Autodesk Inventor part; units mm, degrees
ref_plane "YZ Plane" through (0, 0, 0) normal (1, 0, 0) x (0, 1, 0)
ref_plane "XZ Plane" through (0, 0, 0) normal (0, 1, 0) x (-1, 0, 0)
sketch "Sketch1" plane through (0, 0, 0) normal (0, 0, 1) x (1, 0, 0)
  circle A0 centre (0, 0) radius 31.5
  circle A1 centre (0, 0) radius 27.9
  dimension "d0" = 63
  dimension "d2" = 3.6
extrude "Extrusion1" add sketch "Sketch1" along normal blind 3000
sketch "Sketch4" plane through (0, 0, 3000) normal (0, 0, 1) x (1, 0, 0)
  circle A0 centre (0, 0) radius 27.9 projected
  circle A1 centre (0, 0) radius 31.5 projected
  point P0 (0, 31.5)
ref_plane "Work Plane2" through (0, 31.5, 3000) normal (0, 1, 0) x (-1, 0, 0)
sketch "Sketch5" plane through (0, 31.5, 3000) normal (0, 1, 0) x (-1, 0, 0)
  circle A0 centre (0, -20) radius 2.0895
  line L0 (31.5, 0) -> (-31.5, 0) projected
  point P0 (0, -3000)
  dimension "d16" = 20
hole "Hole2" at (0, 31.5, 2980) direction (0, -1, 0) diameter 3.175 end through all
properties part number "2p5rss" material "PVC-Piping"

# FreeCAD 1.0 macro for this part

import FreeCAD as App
import Part
import Sketcher

V = App.Vector

doc = App.newDocument("Part")
body = doc.addObject("PartDesign::Body", "Body")

# Sketch on XY plane
sketch1 = body.newObject("Sketcher::SketchObject", "Sketch")
sketch1.AttachmentSupport = (doc.getObject("XY_Plane"), [""])
sketch1.MapMode = "FlatFace"
sketch1.addGeometry([
    Part.Circle(V(0, 0, 0), V(0, 0, 1), 32),
    Part.Circle(V(0, 0, 0), V(0, 0, 1), 28),
], False)
sketch1.addConstraint([
    Sketcher.Constraint("Coincident", 0, 3, -1, 1),
    Sketcher.Constraint("Coincident", 1, 3, -1, 1),
    Sketcher.Constraint("Diameter", 0, 63.0),
    Sketcher.Constraint("Diameter", 1, 55.8),
])
pad1 = body.newObject("PartDesign::Pad", "Pad")
pad1.Profile = sketch1
pad1.Length = 3000

# Sketch on XZ plane
sketch2 = body.newObject("Sketcher::SketchObject", "Sketch001")
sketch2.AttachmentSupport = (doc.getObject("XZ_Plane"), [""])
sketch2.MapMode = "FlatFace"
sketch2.AttachmentOffset = App.Placement(V(0, 0, -31.5), App.Rotation())
sketch2.addGeometry(Part.Circle(V(0, 2980, 0), V(0, 0, 1), 1.6), False)
sketch2.addConstraint([
    Sketcher.Constraint("PointOnObject", 0, 3, -2),
    Sketcher.Constraint("Diameter", 0, 3.175),
    Sketcher.Constraint("DistanceY", -1, 1, 0, 3, 2980.0),
])
doc.recompute()
hole = body.newObject("PartDesign::Hole", "Hole")
hole.Profile = sketch2
hole.ThreadType = "None"
hole.Diameter = 3.175
hole.DepthType = "ThroughAll"
hole.Reversed = True

doc.recompute()
